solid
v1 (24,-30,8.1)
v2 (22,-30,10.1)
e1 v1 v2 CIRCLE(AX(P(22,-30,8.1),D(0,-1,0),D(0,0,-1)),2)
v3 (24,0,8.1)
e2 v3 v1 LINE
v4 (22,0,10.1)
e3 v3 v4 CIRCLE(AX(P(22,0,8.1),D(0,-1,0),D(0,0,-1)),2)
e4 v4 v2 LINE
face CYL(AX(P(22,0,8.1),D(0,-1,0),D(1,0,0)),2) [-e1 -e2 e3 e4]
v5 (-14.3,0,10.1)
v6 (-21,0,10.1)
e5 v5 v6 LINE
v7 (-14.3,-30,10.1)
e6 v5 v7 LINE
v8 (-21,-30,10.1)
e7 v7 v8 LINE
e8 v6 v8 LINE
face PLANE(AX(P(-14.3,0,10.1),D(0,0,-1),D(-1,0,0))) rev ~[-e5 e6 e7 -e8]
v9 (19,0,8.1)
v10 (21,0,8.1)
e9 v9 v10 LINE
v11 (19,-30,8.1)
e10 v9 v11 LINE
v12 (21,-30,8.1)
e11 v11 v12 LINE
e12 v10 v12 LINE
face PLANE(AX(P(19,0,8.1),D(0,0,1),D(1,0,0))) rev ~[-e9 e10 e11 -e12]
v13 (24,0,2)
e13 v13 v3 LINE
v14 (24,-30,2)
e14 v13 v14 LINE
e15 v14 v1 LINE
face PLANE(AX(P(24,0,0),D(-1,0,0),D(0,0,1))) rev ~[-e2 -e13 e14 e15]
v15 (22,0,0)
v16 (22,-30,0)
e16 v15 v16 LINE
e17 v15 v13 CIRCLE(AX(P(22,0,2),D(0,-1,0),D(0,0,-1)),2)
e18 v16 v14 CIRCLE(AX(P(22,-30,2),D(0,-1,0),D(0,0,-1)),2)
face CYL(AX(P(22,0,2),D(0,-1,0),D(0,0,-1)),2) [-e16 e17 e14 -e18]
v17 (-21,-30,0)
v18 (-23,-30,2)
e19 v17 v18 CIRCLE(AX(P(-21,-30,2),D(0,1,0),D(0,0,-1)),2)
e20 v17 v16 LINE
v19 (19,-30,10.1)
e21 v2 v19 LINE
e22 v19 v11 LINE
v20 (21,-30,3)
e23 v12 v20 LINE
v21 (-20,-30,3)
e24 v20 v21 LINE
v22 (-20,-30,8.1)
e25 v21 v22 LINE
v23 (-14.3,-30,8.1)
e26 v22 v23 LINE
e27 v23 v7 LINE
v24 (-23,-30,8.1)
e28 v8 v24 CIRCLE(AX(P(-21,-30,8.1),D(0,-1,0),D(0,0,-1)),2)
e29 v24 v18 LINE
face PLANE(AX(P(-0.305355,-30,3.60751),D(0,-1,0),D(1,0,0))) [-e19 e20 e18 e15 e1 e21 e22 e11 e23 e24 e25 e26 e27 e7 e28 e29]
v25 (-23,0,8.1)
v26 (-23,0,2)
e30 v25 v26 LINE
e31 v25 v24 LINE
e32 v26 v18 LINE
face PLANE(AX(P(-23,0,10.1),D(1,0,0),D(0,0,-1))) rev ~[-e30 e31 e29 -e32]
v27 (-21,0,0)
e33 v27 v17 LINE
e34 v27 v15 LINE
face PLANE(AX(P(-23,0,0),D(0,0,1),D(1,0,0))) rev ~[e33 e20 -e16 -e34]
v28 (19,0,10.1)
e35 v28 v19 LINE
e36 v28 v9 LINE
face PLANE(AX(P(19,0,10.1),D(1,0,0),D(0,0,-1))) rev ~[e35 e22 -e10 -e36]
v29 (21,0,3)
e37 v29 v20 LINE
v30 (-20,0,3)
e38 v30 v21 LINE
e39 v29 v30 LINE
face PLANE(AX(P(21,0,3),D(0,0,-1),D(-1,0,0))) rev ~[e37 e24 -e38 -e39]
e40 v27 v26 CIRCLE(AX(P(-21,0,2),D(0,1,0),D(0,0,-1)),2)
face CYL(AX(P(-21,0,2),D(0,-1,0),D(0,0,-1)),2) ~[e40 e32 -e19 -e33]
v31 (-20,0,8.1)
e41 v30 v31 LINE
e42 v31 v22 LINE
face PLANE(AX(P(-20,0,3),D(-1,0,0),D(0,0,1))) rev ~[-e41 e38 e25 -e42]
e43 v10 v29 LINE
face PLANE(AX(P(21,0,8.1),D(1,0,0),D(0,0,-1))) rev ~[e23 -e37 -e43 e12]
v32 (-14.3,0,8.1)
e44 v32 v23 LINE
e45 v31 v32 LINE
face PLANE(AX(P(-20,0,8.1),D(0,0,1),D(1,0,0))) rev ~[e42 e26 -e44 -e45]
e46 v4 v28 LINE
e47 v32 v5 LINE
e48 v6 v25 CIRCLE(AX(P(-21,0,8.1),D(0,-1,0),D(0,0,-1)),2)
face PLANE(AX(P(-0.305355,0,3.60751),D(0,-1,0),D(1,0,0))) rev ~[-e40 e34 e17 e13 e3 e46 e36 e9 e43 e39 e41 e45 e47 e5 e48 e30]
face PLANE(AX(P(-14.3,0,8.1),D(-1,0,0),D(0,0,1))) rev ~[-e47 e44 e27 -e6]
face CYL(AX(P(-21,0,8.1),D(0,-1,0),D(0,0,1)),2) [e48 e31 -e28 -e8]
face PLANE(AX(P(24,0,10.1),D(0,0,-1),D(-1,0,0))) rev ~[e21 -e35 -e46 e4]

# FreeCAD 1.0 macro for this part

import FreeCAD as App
import Part
import Sketcher
from FreeCAD import Vector


def edges_at(feature, points):
    """Names of the edges that pass closest to the given points."""
    edges = feature.Shape.Edges
    near = lambda p: min(range(len(edges)), key=lambda i: edges[i].distToShape(Part.Vertex(*p))[0])
    return sorted({f"Edge{near(p) + 1}" for p in points})


def add_polygon(sketch, points):
    """Adds a closed chain of lines whose ends are joined by coincident constraints."""
    first, n = sketch.GeometryCount, len(points)
    for a, b in zip(points, points[1:] + points[:1]):
        sketch.addGeometry(Part.LineSegment(App.Vector(*a, 0), App.Vector(*b, 0)), False)
    for i in range(n):
        sketch.addConstraint(Sketcher.Constraint("Coincident", first + i, 2, first + (i + 1) % n, 1))

doc = App.newDocument("Part")
body = doc.addObject("PartDesign::Body", "Body")

# Sketch on XZ plane
sketch1 = body.newObject("Sketcher::SketchObject", "Sketch")
sketch1.AttachmentSupport = (doc.getObject("XZ_Plane"), [""])
sketch1.MapMode = "FlatFace"
add_polygon(sketch1, [(-23, 0), (24, 0), (24, 10.1), (19, 10.1), (19, 8.1), (21, 8.1), (21, 3), (-20, 3), (-20, 8.1), (-14.3, 8.1), (-14.3, 10.1), (-23, 10.1)])  # lines 0-11
sketch1.addConstraint([
    Sketcher.Constraint("Horizontal", 0),
    Sketcher.Constraint("Vertical", 1),
    Sketcher.Constraint("Horizontal", 2),
    Sketcher.Constraint("Vertical", 3),
    Sketcher.Constraint("Horizontal", 4),
    Sketcher.Constraint("Vertical", 5),
    Sketcher.Constraint("Horizontal", 6),
    Sketcher.Constraint("Vertical", 7),
    Sketcher.Constraint("Horizontal", 8),
    Sketcher.Constraint("Vertical", 9),
    Sketcher.Constraint("Horizontal", 10),
    Sketcher.Constraint("Vertical", 11),
    Sketcher.Constraint("PointOnObject", 0, 2, -1),
    Sketcher.Constraint("Horizontal", 4, 2, 7, 2),
    Sketcher.Constraint("Horizontal", 2, 2, 9, 2),
    Sketcher.Constraint("Equal", 4, 3),
    Sketcher.Constraint("DistanceX", 0, 1, 0, 2, 47.0),
    Sketcher.Constraint("DistanceX", 2, 2, 2, 1, 5.0),
    Sketcher.Constraint("DistanceX", 4, 1, 4, 2, 2.0),
    Sketcher.Constraint("DistanceX", 6, 2, 6, 1, 41.0),
    Sketcher.Constraint("DistanceX", 8, 1, 8, 2, 5.7),
    Sketcher.Constraint("DistanceY", 1, 1, 1, 2, 10.1),
    Sketcher.Constraint("DistanceY", 5, 2, 5, 1, 5.1),
    Sketcher.Constraint("DistanceX", -1, 1, 0, 2, 24.0),
])
pad1 = body.newObject("PartDesign::Pad", "Pad")
pad1.Profile = sketch1
pad1.Length = 30
doc.recompute()

fillet = body.newObject("PartDesign::Fillet", "Fillet")
fillet.Base = (pad1, edges_at(pad1, [
    (-23, -15, 10.1),
    (24, -15, 10.1),
    (-23, -15, 0),
    (24, -15, 0),
]))
fillet.Radius = 2

doc.recompute()
